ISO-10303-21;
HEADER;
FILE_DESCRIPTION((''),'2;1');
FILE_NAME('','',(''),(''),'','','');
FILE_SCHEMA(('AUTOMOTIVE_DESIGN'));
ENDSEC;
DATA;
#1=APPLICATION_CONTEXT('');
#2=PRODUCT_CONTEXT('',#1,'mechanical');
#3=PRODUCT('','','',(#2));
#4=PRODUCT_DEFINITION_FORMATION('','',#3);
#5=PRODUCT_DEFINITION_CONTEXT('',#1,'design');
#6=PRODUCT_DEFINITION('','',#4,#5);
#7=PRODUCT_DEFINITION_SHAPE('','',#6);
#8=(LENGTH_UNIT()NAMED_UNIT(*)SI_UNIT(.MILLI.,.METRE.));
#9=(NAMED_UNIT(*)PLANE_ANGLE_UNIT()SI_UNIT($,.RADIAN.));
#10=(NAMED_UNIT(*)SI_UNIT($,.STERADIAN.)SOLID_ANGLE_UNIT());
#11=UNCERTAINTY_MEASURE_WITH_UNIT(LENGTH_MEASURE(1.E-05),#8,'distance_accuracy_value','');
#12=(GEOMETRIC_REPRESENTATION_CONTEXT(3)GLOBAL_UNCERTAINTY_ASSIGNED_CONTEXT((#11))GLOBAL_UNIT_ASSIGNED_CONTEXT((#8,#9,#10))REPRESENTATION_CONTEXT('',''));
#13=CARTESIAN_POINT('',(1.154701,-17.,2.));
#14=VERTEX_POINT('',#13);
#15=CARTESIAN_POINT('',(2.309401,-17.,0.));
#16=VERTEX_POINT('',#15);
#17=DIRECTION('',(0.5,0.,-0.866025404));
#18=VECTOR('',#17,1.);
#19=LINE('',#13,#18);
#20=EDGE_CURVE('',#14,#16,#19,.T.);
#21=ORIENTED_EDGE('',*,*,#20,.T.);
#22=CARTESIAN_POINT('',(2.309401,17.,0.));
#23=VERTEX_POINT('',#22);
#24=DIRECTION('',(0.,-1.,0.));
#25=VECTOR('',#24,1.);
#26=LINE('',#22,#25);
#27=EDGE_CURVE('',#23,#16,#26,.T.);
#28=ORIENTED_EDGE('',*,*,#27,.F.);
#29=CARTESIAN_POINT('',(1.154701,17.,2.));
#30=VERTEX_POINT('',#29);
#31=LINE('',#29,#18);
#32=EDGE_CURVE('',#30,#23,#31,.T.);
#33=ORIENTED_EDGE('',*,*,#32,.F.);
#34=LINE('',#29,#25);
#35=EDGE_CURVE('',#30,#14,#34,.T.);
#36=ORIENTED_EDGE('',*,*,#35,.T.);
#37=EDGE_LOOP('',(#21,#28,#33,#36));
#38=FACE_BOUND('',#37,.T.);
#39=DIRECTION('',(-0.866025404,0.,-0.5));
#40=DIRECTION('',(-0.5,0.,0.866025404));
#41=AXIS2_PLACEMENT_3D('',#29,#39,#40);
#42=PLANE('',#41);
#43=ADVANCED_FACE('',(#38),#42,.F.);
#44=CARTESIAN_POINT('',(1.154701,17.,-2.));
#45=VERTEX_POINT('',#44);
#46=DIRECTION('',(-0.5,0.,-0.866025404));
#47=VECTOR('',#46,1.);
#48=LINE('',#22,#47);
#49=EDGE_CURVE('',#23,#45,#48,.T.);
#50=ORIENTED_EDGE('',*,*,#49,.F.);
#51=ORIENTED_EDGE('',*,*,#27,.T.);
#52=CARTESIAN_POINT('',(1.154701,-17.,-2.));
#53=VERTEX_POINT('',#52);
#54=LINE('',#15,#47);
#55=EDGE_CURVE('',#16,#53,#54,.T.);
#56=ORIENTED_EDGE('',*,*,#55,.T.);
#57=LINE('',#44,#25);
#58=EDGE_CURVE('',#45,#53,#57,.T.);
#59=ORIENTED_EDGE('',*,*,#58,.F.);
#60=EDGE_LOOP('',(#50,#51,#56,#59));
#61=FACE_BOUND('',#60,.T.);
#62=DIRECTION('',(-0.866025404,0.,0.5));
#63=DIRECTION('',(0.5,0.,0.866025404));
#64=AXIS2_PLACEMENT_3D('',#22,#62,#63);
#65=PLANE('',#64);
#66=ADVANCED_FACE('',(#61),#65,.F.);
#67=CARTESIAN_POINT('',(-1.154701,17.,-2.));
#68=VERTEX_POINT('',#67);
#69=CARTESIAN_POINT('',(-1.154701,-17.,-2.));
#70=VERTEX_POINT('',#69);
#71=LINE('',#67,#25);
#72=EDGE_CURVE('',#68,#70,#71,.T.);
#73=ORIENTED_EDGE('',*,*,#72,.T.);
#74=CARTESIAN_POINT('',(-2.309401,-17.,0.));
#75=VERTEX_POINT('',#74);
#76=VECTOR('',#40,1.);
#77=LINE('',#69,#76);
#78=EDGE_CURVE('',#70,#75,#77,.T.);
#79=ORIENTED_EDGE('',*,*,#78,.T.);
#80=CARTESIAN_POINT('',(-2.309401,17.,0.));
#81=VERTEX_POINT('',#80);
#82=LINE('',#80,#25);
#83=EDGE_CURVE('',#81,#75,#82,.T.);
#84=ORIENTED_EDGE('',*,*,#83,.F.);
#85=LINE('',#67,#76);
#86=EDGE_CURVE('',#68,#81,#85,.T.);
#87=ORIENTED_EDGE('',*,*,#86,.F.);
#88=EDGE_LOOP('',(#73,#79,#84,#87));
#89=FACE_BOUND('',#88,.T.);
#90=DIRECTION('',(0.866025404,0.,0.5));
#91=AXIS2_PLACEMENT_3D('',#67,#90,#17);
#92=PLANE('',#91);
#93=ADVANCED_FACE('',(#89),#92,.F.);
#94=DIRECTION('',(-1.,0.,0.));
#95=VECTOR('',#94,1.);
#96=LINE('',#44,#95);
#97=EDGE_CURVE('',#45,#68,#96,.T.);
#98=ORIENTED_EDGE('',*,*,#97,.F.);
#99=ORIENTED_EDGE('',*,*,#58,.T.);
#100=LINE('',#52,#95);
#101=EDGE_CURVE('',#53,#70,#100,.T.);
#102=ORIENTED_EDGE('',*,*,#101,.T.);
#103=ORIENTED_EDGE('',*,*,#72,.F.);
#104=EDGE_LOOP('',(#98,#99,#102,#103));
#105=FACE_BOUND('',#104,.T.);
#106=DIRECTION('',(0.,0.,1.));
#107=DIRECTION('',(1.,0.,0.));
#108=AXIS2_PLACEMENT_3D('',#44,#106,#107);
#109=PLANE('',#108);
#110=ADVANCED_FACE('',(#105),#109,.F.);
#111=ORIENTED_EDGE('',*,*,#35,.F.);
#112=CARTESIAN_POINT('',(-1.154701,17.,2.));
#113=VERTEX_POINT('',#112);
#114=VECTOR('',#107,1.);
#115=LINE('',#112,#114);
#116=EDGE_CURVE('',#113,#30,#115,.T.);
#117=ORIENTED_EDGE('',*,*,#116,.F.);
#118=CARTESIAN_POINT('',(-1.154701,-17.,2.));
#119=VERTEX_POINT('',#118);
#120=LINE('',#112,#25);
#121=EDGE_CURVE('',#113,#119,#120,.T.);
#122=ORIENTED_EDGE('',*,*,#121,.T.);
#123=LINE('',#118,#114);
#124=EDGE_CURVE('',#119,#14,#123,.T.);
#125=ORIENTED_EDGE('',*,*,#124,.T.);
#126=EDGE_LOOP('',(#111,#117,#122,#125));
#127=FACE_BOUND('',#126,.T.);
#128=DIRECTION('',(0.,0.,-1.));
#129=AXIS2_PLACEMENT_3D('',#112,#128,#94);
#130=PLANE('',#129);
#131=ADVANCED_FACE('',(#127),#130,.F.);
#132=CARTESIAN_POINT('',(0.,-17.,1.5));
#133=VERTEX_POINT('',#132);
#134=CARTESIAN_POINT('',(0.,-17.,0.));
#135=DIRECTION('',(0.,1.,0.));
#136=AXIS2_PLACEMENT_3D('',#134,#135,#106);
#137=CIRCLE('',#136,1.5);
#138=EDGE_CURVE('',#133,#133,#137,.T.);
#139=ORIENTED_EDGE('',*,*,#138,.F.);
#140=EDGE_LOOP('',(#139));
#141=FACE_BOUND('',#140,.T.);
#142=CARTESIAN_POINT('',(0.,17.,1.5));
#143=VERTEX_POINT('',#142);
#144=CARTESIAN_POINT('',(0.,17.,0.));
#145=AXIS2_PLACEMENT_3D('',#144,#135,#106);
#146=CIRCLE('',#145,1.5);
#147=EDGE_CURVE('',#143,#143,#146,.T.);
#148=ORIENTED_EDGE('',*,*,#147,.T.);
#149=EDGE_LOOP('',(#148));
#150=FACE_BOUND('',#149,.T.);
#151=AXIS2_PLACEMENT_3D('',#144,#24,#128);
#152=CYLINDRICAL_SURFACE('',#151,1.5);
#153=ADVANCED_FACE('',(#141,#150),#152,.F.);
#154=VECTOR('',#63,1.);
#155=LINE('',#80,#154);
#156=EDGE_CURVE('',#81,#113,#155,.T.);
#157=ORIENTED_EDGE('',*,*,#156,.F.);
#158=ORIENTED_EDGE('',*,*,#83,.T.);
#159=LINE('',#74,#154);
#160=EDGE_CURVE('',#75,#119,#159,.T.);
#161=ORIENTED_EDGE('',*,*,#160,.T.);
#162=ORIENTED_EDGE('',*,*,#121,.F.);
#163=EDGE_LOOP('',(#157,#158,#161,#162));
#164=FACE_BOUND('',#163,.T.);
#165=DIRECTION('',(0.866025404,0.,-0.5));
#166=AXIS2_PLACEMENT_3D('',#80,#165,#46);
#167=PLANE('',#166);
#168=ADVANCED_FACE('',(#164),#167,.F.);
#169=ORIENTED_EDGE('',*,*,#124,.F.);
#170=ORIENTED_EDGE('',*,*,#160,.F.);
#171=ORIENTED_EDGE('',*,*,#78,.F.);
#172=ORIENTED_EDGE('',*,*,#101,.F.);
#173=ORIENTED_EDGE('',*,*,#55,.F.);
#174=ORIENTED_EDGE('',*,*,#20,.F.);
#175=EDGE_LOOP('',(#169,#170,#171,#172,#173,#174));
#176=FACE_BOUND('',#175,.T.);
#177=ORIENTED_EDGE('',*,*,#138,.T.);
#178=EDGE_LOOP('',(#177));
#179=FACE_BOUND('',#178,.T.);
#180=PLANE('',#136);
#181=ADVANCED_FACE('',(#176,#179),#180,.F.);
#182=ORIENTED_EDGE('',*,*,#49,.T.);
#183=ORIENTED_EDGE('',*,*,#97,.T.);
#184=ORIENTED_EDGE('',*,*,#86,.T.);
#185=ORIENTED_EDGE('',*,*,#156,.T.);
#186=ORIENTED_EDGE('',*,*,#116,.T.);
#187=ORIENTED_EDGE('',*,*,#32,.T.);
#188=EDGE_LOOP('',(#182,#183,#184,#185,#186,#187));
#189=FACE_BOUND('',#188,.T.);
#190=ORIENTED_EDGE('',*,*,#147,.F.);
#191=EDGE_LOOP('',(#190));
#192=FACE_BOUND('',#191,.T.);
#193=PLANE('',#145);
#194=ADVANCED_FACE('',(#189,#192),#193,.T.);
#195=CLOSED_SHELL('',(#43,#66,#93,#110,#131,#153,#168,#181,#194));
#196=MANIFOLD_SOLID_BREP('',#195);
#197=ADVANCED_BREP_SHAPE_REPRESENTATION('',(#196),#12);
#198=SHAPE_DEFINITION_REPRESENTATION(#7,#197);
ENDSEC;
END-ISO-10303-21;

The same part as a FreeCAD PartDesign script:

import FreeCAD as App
import Part
import Sketcher
Q = App.Units.Quantity

doc = App.newDocument("Part")
body = doc.addObject("PartDesign::Body", "Body")

# Sketch on XZ plane
sketch1 = doc.addObject("Sketcher::SketchObject", "Sketch")
body.addObject(sketch1)
sketch1.AttachmentSupport = (doc.XZ_Plane, [""])
sketch1.MapMode = "FlatFace"
sketch1.addGeometry(Part.LineSegment(App.Vector(1.154701, -2, 0), App.Vector(-1.154701, -2, 0)), False)
sketch1.addGeometry(Part.LineSegment(App.Vector(-1.154701, -2, 0), App.Vector(-2.309401, 0, 0)), False)
sketch1.addGeometry(Part.LineSegment(App.Vector(-2.309401, 0, 0), App.Vector(-1.154701, 2, 0)), False)
sketch1.addGeometry(Part.LineSegment(App.Vector(-1.154701, 2, 0), App.Vector(1.154701, 2, 0)), False)
sketch1.addGeometry(Part.LineSegment(App.Vector(1.154701, 2, 0), App.Vector(2.309401, 0, 0)), False)
sketch1.addGeometry(Part.LineSegment(App.Vector(2.309401, 0, 0), App.Vector(1.154701, -2, 0)), False)
sketch1.addGeometry(Part.Circle(App.Vector(0, 0, 0), App.Vector(0, 0, 1), 1.5), False)
sketch1.addConstraint(Sketcher.Constraint("Coincident", 0, 2, 1, 1))
sketch1.addConstraint(Sketcher.Constraint("Coincident", 1, 2, 2, 1))
sketch1.addConstraint(Sketcher.Constraint("Coincident", 2, 2, 3, 1))
sketch1.addConstraint(Sketcher.Constraint("Coincident", 3, 2, 4, 1))
sketch1.addConstraint(Sketcher.Constraint("Coincident", 4, 2, 5, 1))
sketch1.addConstraint(Sketcher.Constraint("Coincident", 5, 2, 0, 1))
sketch1.addConstraint(Sketcher.Constraint("Horizontal", 0))
sketch1.addConstraint(Sketcher.Constraint("Horizontal", 3))
sketch1.addConstraint(Sketcher.Constraint("Coincident", 6, 3, -1, 1))
sketch1.addConstraint(Sketcher.Constraint("Symmetric", 0, 2, 3, 2, -1, 1))
sketch1.addConstraint(Sketcher.Constraint("Symmetric", 1, 2, 4, 2, -1, 1))
sketch1.addConstraint(Sketcher.Constraint("PointOnObject", 1, 2, -1))
sketch1.addConstraint(Sketcher.Constraint("Parallel", 2, 5))
sketch1.addConstraint(Sketcher.Constraint("Vertical", 0, 2, 2, 2))
sketch1.addConstraint(Sketcher.Constraint("Diameter", 6, Q("3 mm")))
sketch1.addConstraint(Sketcher.Constraint("Angle", 1, Q("120 deg")))
sketch1.addConstraint(Sketcher.Constraint("DistanceY", 0, 2, -1, 1, Q("2 mm")))
sketch1.addConstraint(Sketcher.Constraint("DistanceX", 0, 2, 0, 1, Q("2.309401 mm")))
pad1 = doc.addObject("PartDesign::Pad", "Pad")
body.addObject(pad1)
pad1.Profile = sketch1
pad1.Length = 34
pad1.Midplane = True

doc.recompute()
